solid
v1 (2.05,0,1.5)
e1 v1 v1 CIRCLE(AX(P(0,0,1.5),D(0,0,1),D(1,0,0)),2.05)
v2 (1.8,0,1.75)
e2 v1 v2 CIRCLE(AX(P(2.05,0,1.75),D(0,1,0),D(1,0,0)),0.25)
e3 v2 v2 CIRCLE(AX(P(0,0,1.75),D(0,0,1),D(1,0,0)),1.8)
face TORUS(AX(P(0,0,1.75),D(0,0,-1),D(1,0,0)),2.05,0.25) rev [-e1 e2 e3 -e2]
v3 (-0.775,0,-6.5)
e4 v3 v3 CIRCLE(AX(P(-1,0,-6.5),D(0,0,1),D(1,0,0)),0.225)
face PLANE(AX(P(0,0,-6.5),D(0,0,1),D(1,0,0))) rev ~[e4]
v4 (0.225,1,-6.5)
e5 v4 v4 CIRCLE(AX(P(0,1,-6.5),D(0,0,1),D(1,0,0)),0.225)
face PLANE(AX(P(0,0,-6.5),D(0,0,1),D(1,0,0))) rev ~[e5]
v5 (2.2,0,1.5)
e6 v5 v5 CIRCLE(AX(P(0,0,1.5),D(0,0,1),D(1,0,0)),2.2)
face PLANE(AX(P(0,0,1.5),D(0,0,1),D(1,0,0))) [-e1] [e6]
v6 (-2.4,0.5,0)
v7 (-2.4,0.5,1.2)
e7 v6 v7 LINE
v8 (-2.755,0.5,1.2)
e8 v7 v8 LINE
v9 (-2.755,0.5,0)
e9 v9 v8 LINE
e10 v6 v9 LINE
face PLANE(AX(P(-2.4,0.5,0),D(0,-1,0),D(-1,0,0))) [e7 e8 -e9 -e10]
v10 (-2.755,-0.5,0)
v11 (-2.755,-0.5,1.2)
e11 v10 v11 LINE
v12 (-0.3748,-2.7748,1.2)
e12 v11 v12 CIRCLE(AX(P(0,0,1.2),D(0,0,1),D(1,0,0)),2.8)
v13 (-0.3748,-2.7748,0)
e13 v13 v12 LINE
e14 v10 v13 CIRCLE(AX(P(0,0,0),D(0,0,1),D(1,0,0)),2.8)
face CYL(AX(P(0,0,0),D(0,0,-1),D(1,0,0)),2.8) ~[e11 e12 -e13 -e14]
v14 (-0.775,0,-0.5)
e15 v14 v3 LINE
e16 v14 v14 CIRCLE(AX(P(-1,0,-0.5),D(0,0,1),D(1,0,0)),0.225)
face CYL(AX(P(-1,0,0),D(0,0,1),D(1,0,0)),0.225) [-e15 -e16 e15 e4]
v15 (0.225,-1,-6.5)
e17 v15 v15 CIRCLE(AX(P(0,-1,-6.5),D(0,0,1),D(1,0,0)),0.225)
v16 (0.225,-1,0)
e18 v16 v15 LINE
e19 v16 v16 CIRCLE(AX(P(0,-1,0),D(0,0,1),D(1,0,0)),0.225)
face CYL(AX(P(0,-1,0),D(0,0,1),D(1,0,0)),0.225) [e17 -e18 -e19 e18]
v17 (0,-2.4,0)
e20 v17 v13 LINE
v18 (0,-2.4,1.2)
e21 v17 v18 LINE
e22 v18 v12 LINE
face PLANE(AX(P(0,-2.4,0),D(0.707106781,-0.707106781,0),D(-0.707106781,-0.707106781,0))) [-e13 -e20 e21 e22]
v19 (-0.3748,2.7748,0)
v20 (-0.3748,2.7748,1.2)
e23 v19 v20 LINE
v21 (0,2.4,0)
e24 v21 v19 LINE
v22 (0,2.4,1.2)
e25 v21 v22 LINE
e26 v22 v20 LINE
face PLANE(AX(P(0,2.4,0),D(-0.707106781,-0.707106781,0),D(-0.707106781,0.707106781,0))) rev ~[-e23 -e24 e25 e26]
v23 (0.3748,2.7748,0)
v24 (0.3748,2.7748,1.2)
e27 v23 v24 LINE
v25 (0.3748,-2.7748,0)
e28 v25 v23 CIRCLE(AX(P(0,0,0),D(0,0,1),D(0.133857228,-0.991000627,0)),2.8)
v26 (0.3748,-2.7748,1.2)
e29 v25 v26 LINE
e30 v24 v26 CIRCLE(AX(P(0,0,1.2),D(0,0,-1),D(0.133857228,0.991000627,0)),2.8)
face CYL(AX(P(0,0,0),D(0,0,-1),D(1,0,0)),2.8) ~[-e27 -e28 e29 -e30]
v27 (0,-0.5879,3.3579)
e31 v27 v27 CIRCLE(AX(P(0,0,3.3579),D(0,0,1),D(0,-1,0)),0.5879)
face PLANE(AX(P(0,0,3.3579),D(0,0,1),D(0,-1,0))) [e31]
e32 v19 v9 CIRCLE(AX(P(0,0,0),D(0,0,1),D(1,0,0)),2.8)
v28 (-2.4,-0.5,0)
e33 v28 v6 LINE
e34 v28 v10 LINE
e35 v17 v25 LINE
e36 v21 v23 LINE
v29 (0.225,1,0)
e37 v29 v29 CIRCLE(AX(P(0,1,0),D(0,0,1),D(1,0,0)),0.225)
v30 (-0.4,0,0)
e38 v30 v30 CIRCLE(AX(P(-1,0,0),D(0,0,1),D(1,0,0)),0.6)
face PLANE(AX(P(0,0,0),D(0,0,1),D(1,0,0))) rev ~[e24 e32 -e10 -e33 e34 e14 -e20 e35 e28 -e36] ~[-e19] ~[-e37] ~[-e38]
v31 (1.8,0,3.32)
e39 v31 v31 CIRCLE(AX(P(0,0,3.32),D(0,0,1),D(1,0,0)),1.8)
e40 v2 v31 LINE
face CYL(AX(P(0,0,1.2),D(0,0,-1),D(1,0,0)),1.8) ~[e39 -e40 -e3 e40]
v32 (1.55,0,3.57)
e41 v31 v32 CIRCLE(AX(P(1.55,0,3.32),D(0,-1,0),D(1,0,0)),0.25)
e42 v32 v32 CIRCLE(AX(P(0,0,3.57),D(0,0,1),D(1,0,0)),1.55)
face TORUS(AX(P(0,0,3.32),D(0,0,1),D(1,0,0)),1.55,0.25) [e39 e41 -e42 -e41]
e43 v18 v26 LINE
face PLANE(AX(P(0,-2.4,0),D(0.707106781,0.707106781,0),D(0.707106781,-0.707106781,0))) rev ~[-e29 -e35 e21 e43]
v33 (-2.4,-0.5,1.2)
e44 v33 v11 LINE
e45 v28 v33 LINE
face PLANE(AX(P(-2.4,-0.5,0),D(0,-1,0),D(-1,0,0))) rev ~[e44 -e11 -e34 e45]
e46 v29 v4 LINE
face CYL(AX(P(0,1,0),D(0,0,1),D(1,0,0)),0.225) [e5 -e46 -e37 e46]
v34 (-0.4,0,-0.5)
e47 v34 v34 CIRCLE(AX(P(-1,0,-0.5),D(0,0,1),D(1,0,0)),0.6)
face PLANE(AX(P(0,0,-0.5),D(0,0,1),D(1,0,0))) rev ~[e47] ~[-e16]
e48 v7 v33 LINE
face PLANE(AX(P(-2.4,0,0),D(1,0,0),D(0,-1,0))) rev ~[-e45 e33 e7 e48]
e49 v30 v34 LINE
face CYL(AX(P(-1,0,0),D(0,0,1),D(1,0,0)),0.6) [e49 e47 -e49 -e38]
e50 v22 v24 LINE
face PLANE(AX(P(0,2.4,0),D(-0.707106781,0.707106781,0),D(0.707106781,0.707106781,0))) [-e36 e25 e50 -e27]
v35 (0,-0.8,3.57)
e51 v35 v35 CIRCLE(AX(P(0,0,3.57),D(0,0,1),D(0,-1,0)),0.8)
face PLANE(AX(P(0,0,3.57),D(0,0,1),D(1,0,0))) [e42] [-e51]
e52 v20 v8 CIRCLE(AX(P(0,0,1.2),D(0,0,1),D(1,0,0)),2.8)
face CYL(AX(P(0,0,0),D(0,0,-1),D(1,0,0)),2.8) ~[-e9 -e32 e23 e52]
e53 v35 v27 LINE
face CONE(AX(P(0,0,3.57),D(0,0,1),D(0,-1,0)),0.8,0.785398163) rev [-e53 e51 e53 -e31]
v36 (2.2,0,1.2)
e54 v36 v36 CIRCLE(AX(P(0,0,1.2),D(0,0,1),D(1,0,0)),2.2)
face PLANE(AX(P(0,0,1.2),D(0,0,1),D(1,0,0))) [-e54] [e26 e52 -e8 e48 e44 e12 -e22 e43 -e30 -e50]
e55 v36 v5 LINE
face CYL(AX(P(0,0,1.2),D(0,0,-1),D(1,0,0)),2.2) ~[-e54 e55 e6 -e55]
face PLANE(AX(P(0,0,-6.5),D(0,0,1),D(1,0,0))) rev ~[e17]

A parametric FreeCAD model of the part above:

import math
import FreeCAD as App
import Part
import Sketcher
from FreeCAD import Vector
Q = App.Units.Quantity


def edges_at(feature, points):
    """Names of the edges that pass closest to the given points."""
    edges = feature.Shape.Edges
    near = lambda p: min(range(len(edges)), key=lambda i: edges[i].distToShape(Part.Vertex(*p))[0])
    return sorted({f"Edge{near(p) + 1}" for p in points})


def add_polygon(sketch, points):
    """Adds a closed chain of lines whose ends are joined by coincident constraints."""
    first, n = sketch.GeometryCount, len(points)
    for a, b in zip(points, points[1:] + points[:1]):
        sketch.addGeometry(Part.LineSegment(App.Vector(*a, 0), App.Vector(*b, 0)), False)
    for i in range(n):
        sketch.addConstraint(Sketcher.Constraint("Coincident", first + i, 2, first + (i + 1) % n, 1))

doc = App.newDocument("Part")
body = doc.addObject("PartDesign::Body", "Body")

sketch1 = body.newObject("Sketcher::SketchObject", "Sketch")
sketch1.AttachmentSupport = (doc.getObject("XY_Plane"), [""])
sketch1.MapMode = "FlatFace"
sketch1.addGeometry([
    Part.ArcOfCircle(Part.Circle(Vector(0, 0, 0), Vector(0, 0, 1), 2.8), math.radians(-82.307456), math.radians(82.307456)),
    Part.LineSegment(Vector(0.3748, 2.7748, 0), Vector(0, 2.4, 0)),
    Part.LineSegment(Vector(0, 2.4, 0), Vector(-0.3748, 2.7748, 0)),
    Part.ArcOfCircle(Part.Circle(Vector(0, 0, 0), Vector(0, 0, 1), 2.8), math.radians(97.692544), math.radians(169.713456)),
    Part.LineSegment(Vector(-2.755, 0.5, 0), Vector(-2.4, 0.5, 0)),
    Part.LineSegment(Vector(-2.4, 0.5, 0), Vector(-2.4, -0.5, 0)),
    Part.LineSegment(Vector(-2.4, -0.5, 0), Vector(-2.755, -0.5, 0)),
    Part.ArcOfCircle(Part.Circle(Vector(0, 0, 0), Vector(0, 0, 1), 2.8), math.radians(-169.713456), math.radians(-97.692544)),
    Part.LineSegment(Vector(-0.3748, -2.7748, 0), Vector(0, -2.4, 0)),
    Part.LineSegment(Vector(0, -2.4, 0), Vector(0.3748, -2.7748, 0)),
], False)
sketch1.addConstraint([
    Sketcher.Constraint("Coincident", 0, 2, 1, 1),
    Sketcher.Constraint("Coincident", 1, 2, 2, 1),
    Sketcher.Constraint("Coincident", 2, 2, 3, 1),
    Sketcher.Constraint("Coincident", 3, 2, 4, 1),
    Sketcher.Constraint("Coincident", 4, 2, 5, 1),
    Sketcher.Constraint("Coincident", 5, 2, 6, 1),
    Sketcher.Constraint("Coincident", 6, 2, 7, 1),
    Sketcher.Constraint("Coincident", 7, 2, 8, 1),
    Sketcher.Constraint("Coincident", 8, 2, 9, 1),
    Sketcher.Constraint("Coincident", 9, 2, 0, 1),
    Sketcher.Constraint("Horizontal", 4),
    Sketcher.Constraint("Vertical", 5),
    Sketcher.Constraint("Horizontal", 6),
    Sketcher.Constraint("Coincident", 0, 3, -1, 1),
    Sketcher.Constraint("Coincident", 3, 3, -1, 1),
    Sketcher.Constraint("Coincident", 7, 3, -1, 1),
    Sketcher.Constraint("Equal", 0, 3),
    Sketcher.Constraint("Equal", 3, 7),
    Sketcher.Constraint("Symmetric", 1, 2, 8, 2, -1, 1),
    Sketcher.Constraint("PointOnObject", 1, 2, -2),
    Sketcher.Constraint("Perpendicular", 1, 2),
    Sketcher.Constraint("Perpendicular", 2, 8),
    Sketcher.Constraint("Perpendicular", 8, 9),
    Sketcher.Constraint("Horizontal", 0, 2, 2, 2),
    Sketcher.Constraint("Vertical", 3, 2, 6, 2),
    Sketcher.Constraint("Radius", 0, 2.8),
    Sketcher.Constraint("DistanceY", -1, 1, 3, 2, 0.5),
    Sketcher.Constraint("DistanceY", -1, 1, 1, 2, 2.4),
    Sketcher.Constraint("DistanceX", 4, 2, -1, 1, 2.4),
])
pad1 = body.newObject("PartDesign::Pad", "Pad")
pad1.Profile = sketch1
pad1.Length = 1.2

sketch2 = body.newObject("Sketcher::SketchObject", "Sketch001")
sketch2.AttachmentSupport = (doc.getObject("XY_Plane"), [""])
sketch2.MapMode = "FlatFace"
sketch2.addGeometry([
    Part.Circle(Vector(0, 1, 0), Vector(0, 0, 1), 0.225),
    Part.Circle(Vector(0, -1, 0), Vector(0, 0, 1), 0.225),
    Part.Circle(Vector(-1, 0, 0), Vector(0, 0, 1), 0.225),
], False)
sketch2.addConstraint([
    Sketcher.Constraint("Equal", 0, 1),
    Sketcher.Constraint("Equal", 1, 2),
    Sketcher.Constraint("Symmetric", 0, 3, 1, 3, -1, 1),
    Sketcher.Constraint("PointOnObject", 0, 3, -2),
    Sketcher.Constraint("PointOnObject", 2, 3, -1),
    Sketcher.Constraint("Diameter", 0, 0.45),
    Sketcher.Constraint("DistanceY", 1, 3, 0, 3, 2.0),
    Sketcher.Constraint("DistanceX", 2, 3, -1, 1, 1.0),
])
pad2 = body.newObject("PartDesign::Pad", "Pad001")
pad2.Profile = sketch2
pad2.Length = 6.5
pad2.Reversed = True

sketch3 = body.newObject("Sketcher::SketchObject", "Sketch002")
sketch3.AttachmentSupport = (doc.getObject("XY_Plane"), [""])
sketch3.MapMode = "FlatFace"
sketch3.addGeometry([
    Part.Circle(Vector(-1, 0, 0), Vector(0, 0, 1), 0.6),
    Part.Circle(Vector(-1, 0, 0), Vector(0, 0, 1), 0.225),
], False)
sketch3.addConstraint([
    Sketcher.Constraint("Coincident", 1, 3, 0, 3),
    Sketcher.Constraint("PointOnObject", 0, 3, -1),
    Sketcher.Constraint("Diameter", 0, 1.2),
    Sketcher.Constraint("Diameter", 1, 0.45),
    Sketcher.Constraint("DistanceX", 0, 3, -1, 1, 1.0),
])
pad3 = body.newObject("PartDesign::Pad", "Pad002")
pad3.Profile = sketch3
pad3.Length = 0.5
pad3.Reversed = True

sketch4 = body.newObject("Sketcher::SketchObject", "Sketch003")
sketch4.AttachmentSupport = (doc.getObject("XY_Plane"), [""])
sketch4.MapMode = "FlatFace"
sketch4.AttachmentOffset = App.Placement(Vector(0, 0, 1.2), App.Rotation())
sketch4.addGeometry(Part.Circle(Vector(0, 0, 0), Vector(0, 0, 1), 1.8), False)
sketch4.addConstraint([
    Sketcher.Constraint("Coincident", 0, 3, -1, 1),
    Sketcher.Constraint("Diameter", 0, 3.6),
])
pad4 = body.newObject("PartDesign::Pad", "Pad003")
pad4.Profile = sketch4
pad4.Length = 2.37

sketch5 = body.newObject("Sketcher::SketchObject", "Sketch004")
sketch5.AttachmentSupport = (doc.getObject("XY_Plane"), [""])
sketch5.MapMode = "FlatFace"
sketch5.AttachmentOffset = App.Placement(Vector(0, 0, 1.2), App.Rotation())
sketch5.addGeometry([
    Part.Circle(Vector(0, 0, 0), Vector(0, 0, 1), 2.2),
    Part.Circle(Vector(0, 0, 0), Vector(0, 0, 1), 1.8),
], False)
sketch5.addConstraint([
    Sketcher.Constraint("Coincident", 0, 3, -1, 1),
    Sketcher.Constraint("Coincident", 1, 3, -1, 1),
    Sketcher.Constraint("Diameter", 0, 4.4),
    Sketcher.Constraint("Diameter", 1, 3.6),
])
pad5 = body.newObject("PartDesign::Pad", "Pad004")
pad5.Profile = sketch5
pad5.Length = 0.3

sketch6 = body.newObject("Sketcher::SketchObject", "Sketch005")
sketch6.AttachmentSupport = (doc.getObject("YZ_Plane"), [""])
sketch6.MapMode = "FlatFace"
add_polygon(sketch6, [(0, 3.3579), (0, 3.57), (-0.8, 3.57), (-0.5879, 3.3579)])
sketch6.addConstraint([
    Sketcher.Constraint("Vertical", 0),
    Sketcher.Constraint("Horizontal", 1),
    Sketcher.Constraint("Horizontal", 3),
    Sketcher.Constraint("PointOnObject", 0, 2, -2),
    Sketcher.Constraint("Angle", 2, Q("-45 deg")),
    Sketcher.Constraint("DistanceX", 1, 2, 1, 1, 0.8),
    Sketcher.Constraint("Distance", 2, 0.3),
    Sketcher.Constraint("DistanceY", -1, 1, 0, 2, 3.57),
])
groove = body.newObject("PartDesign::Groove", "Groove")
groove.Profile = sketch6
groove.ReferenceAxis = (sketch6, ["V_Axis"])
groove.Angle = 360
doc.recompute()

fillet = body.newObject("PartDesign::Fillet", "Fillet")
fillet.Base = (groove, edges_at(groove, [(-1.8, 0, 3.57), (-1.8, 0, 1.5)]))
fillet.Radius = 0.25

doc.recompute()
